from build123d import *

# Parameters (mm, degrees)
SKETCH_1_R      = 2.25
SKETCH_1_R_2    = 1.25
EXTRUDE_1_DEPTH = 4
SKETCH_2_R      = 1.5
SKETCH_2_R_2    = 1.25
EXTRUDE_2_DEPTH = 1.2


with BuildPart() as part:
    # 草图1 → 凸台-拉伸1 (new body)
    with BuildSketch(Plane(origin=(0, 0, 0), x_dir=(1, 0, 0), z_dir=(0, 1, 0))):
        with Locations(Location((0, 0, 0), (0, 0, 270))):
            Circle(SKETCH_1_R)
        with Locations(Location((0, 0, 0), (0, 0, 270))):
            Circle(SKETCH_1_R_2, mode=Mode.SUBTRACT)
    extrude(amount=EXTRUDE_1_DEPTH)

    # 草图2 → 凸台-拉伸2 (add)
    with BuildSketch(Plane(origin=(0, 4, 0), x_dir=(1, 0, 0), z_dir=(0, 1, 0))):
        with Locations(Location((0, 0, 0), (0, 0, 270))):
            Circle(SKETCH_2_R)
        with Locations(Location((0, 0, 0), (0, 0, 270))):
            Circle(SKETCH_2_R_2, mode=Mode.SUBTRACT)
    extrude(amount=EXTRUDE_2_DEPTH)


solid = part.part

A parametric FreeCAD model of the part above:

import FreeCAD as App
import Part
import Sketcher

V = App.Vector

doc = App.newDocument("Part")
body = doc.addObject("PartDesign::Body", "Body")

# Sketch on XZ plane
sketch1 = body.newObject("Sketcher::SketchObject", "Sketch")
sketch1.AttachmentSupport = (doc.getObject("XZ_Plane"), [""])
sketch1.MapMode = "FlatFace"
sketch1.addGeometry(Part.Circle(V(0, 0, 0), V(0, 0, 1), 2.2), False)
sketch1.addGeometry(Part.Circle(V(0, 0, 0), V(0, 0, 1), 1.2), False)
sketch1.addConstraint(Sketcher.Constraint("Coincident", 0, 3, -1, 1))
sketch1.addConstraint(Sketcher.Constraint("Coincident", 1, 3, -1, 1))
sketch1.addConstraint(Sketcher.Constraint("Diameter", 0, 4.5))
sketch1.addConstraint(Sketcher.Constraint("Diameter", 1, 2.5))
pad1 = body.newObject("PartDesign::Pad", "Pad")
pad1.Profile = sketch1
pad1.Length = 4
pad1.Reversed = True

# Sketch on XZ plane
sketch2 = body.newObject("Sketcher::SketchObject", "Sketch001")
sketch2.AttachmentSupport = (doc.getObject("XZ_Plane"), [""])
sketch2.MapMode = "FlatFace"
sketch2.AttachmentOffset = App.Placement(V(0, 0, -4), App.Rotation())
sketch2.addGeometry(Part.Circle(V(0, 0, 0), V(0, 0, 1), 1.5), False)
sketch2.addGeometry(Part.Circle(V(0, 0, 0), V(0, 0, 1), 1.2), False)
sketch2.addConstraint(Sketcher.Constraint("Coincident", 0, 3, -1, 1))
sketch2.addConstraint(Sketcher.Constraint("Coincident", 1, 3, -1, 1))
sketch2.addConstraint(Sketcher.Constraint("Diameter", 0, 3.0))
sketch2.addConstraint(Sketcher.Constraint("Diameter", 1, 2.5))
pad2 = body.newObject("PartDesign::Pad", "Pad001")
pad2.Profile = sketch2
pad2.Length = 1.2
pad2.Reversed = True

doc.recompute()
